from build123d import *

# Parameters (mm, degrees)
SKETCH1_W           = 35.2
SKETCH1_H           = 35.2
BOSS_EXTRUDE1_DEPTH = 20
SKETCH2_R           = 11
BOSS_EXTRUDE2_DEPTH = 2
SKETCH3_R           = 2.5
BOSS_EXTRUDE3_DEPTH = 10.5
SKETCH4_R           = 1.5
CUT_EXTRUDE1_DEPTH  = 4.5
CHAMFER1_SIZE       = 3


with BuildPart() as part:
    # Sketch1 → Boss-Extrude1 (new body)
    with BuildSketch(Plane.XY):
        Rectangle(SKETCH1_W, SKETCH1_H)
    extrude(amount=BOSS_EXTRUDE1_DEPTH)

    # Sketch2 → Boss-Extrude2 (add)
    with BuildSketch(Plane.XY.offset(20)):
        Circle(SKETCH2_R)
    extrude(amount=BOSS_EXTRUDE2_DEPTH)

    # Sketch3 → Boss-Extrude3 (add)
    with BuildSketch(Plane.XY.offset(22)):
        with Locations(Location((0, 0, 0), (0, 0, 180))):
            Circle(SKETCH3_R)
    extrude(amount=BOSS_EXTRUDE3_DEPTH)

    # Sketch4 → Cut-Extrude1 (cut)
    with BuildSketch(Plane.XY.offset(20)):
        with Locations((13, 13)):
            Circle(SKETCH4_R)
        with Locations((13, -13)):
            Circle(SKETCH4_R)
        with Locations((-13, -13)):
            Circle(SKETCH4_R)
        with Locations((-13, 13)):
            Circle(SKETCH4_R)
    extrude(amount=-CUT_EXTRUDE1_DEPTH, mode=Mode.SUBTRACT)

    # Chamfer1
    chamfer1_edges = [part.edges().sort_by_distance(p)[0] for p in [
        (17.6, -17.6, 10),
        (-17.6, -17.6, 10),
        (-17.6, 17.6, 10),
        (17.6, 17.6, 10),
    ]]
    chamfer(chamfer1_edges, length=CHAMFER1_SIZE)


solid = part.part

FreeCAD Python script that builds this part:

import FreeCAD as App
import Part
import Sketcher
from FreeCAD import Vector
Q = App.Units.Quantity


def edges_at(feature, points):
    """Names of the edges that pass closest to the given points."""
    edges = feature.Shape.Edges
    near = lambda p: min(range(len(edges)), key=lambda i: edges[i].distToShape(Part.Vertex(*p))[0])
    return sorted({f"Edge{near(p) + 1}" for p in points})


def add_polygon(sketch, points):
    """Adds a closed chain of lines whose ends are joined by coincident constraints."""
    first, n = sketch.GeometryCount, len(points)
    for a, b in zip(points, points[1:] + points[:1]):
        sketch.addGeometry(Part.LineSegment(App.Vector(*a, 0), App.Vector(*b, 0)), False)
    for i in range(n):
        sketch.addConstraint(Sketcher.Constraint("Coincident", first + i, 2, first + (i + 1) % n, 1))

doc = App.newDocument("Part")
body = doc.addObject("PartDesign::Body", "Body")

# Sketch on XY plane
sketch1 = doc.addObject("Sketcher::SketchObject", "Sketch")
body.addObject(sketch1)
sketch1.AttachmentSupport = (doc.XY_Plane, [""])
sketch1.MapMode = "FlatFace"
add_polygon(sketch1, [(-18, 18), (-18, -18), (18, -18), (18, 18)])  # lines 0-3
sketch1.addConstraint([
    Sketcher.Constraint("Vertical", 0),
    Sketcher.Constraint("Horizontal", 1),
    Sketcher.Constraint("Vertical", 2),
    Sketcher.Constraint("Horizontal", 3),
    Sketcher.Constraint("Symmetric", 0, 2, 2, 2, -1, 1),
    Sketcher.Constraint("Equal", 3, 0),
    Sketcher.Constraint("DistanceX", 1, 1, 1, 2, Q("35.2 mm")),
])
pad1 = doc.addObject("PartDesign::Pad", "Pad")
body.addObject(pad1)
pad1.Profile = sketch1
pad1.Length = 20

# Sketch on XY plane
sketch2 = doc.addObject("Sketcher::SketchObject", "Sketch001")
body.addObject(sketch2)
sketch2.AttachmentSupport = (doc.XY_Plane, [""])
sketch2.MapMode = "FlatFace"
sketch2.AttachmentOffset = App.Placement(Vector(0, 0, 20), App.Rotation())
sketch2.addGeometry(Part.Circle(Vector(0, 0, 0), Vector(0, 0, 1), 11), False)
sketch2.addConstraint([
    Sketcher.Constraint("Coincident", 0, 3, -1, 1),
    Sketcher.Constraint("Diameter", 0, Q("22 mm")),
])
pad2 = doc.addObject("PartDesign::Pad", "Pad001")
body.addObject(pad2)
pad2.Profile = sketch2
pad2.Length = 2

# Sketch on XY plane
sketch3 = doc.addObject("Sketcher::SketchObject", "Sketch002")
body.addObject(sketch3)
sketch3.AttachmentSupport = (doc.XY_Plane, [""])
sketch3.MapMode = "FlatFace"
sketch3.AttachmentOffset = App.Placement(Vector(0, 0, 22), App.Rotation())
sketch3.addGeometry(Part.Circle(Vector(0, 0, 0), Vector(0, 0, 1), 2.5), False)
sketch3.addConstraint([
    Sketcher.Constraint("Coincident", 0, 3, -1, 1),
    Sketcher.Constraint("Diameter", 0, Q("5 mm")),
])
pad3 = doc.addObject("PartDesign::Pad", "Pad002")
body.addObject(pad3)
pad3.Profile = sketch3
pad3.Length = 10.5

# Sketch on XY plane
sketch4 = doc.addObject("Sketcher::SketchObject", "Sketch003")
body.addObject(sketch4)
sketch4.AttachmentSupport = (doc.XY_Plane, [""])
sketch4.MapMode = "FlatFace"
sketch4.AttachmentOffset = App.Placement(Vector(0, 0, 20), App.Rotation())
sketch4.addGeometry([
    Part.Circle(Vector(13, 13, 0), Vector(0, 0, 1), 1.5),
    Part.Circle(Vector(13, -13, 0), Vector(0, 0, 1), 1.5),
    Part.Circle(Vector(-13, -13, 0), Vector(0, 0, 1), 1.5),
    Part.Circle(Vector(-13, 13, 0), Vector(0, 0, 1), 1.5),
], False)
sketch4.addConstraint([
    Sketcher.Constraint("Equal", 0, 1),
    Sketcher.Constraint("Equal", 1, 2),
    Sketcher.Constraint("Equal", 2, 3),
    Sketcher.Constraint("Symmetric", 0, 3, 2, 3, -1, 1),
    Sketcher.Constraint("Symmetric", 1, 3, 3, 3, -1, 1),
    Sketcher.Constraint("Symmetric", 1, 3, 2, 3, -2),
    Sketcher.Constraint("Diameter", 0, Q("3 mm")),
    Sketcher.Constraint("DistanceX", -1, 1, 0, 3, Q("13 mm")),
    Sketcher.Constraint("DistanceY", -1, 1, 0, 3, Q("13 mm")),
])
pocket1 = doc.addObject("PartDesign::Pocket", "Pocket")
body.addObject(pocket1)
pocket1.Profile = sketch4
pocket1.Length = 4.5
doc.recompute()

chamfer = doc.addObject("PartDesign::Chamfer", "Chamfer")
body.addObject(chamfer)
chamfer.Base = (pocket1, edges_at(pocket1, [
    (17.6, -17.6, 10),
    (-17.6, -17.6, 10),
    (-17.6, 17.6, 10),
    (17.6, 17.6, 10),
]))
chamfer.Size = 3

doc.recompute()
